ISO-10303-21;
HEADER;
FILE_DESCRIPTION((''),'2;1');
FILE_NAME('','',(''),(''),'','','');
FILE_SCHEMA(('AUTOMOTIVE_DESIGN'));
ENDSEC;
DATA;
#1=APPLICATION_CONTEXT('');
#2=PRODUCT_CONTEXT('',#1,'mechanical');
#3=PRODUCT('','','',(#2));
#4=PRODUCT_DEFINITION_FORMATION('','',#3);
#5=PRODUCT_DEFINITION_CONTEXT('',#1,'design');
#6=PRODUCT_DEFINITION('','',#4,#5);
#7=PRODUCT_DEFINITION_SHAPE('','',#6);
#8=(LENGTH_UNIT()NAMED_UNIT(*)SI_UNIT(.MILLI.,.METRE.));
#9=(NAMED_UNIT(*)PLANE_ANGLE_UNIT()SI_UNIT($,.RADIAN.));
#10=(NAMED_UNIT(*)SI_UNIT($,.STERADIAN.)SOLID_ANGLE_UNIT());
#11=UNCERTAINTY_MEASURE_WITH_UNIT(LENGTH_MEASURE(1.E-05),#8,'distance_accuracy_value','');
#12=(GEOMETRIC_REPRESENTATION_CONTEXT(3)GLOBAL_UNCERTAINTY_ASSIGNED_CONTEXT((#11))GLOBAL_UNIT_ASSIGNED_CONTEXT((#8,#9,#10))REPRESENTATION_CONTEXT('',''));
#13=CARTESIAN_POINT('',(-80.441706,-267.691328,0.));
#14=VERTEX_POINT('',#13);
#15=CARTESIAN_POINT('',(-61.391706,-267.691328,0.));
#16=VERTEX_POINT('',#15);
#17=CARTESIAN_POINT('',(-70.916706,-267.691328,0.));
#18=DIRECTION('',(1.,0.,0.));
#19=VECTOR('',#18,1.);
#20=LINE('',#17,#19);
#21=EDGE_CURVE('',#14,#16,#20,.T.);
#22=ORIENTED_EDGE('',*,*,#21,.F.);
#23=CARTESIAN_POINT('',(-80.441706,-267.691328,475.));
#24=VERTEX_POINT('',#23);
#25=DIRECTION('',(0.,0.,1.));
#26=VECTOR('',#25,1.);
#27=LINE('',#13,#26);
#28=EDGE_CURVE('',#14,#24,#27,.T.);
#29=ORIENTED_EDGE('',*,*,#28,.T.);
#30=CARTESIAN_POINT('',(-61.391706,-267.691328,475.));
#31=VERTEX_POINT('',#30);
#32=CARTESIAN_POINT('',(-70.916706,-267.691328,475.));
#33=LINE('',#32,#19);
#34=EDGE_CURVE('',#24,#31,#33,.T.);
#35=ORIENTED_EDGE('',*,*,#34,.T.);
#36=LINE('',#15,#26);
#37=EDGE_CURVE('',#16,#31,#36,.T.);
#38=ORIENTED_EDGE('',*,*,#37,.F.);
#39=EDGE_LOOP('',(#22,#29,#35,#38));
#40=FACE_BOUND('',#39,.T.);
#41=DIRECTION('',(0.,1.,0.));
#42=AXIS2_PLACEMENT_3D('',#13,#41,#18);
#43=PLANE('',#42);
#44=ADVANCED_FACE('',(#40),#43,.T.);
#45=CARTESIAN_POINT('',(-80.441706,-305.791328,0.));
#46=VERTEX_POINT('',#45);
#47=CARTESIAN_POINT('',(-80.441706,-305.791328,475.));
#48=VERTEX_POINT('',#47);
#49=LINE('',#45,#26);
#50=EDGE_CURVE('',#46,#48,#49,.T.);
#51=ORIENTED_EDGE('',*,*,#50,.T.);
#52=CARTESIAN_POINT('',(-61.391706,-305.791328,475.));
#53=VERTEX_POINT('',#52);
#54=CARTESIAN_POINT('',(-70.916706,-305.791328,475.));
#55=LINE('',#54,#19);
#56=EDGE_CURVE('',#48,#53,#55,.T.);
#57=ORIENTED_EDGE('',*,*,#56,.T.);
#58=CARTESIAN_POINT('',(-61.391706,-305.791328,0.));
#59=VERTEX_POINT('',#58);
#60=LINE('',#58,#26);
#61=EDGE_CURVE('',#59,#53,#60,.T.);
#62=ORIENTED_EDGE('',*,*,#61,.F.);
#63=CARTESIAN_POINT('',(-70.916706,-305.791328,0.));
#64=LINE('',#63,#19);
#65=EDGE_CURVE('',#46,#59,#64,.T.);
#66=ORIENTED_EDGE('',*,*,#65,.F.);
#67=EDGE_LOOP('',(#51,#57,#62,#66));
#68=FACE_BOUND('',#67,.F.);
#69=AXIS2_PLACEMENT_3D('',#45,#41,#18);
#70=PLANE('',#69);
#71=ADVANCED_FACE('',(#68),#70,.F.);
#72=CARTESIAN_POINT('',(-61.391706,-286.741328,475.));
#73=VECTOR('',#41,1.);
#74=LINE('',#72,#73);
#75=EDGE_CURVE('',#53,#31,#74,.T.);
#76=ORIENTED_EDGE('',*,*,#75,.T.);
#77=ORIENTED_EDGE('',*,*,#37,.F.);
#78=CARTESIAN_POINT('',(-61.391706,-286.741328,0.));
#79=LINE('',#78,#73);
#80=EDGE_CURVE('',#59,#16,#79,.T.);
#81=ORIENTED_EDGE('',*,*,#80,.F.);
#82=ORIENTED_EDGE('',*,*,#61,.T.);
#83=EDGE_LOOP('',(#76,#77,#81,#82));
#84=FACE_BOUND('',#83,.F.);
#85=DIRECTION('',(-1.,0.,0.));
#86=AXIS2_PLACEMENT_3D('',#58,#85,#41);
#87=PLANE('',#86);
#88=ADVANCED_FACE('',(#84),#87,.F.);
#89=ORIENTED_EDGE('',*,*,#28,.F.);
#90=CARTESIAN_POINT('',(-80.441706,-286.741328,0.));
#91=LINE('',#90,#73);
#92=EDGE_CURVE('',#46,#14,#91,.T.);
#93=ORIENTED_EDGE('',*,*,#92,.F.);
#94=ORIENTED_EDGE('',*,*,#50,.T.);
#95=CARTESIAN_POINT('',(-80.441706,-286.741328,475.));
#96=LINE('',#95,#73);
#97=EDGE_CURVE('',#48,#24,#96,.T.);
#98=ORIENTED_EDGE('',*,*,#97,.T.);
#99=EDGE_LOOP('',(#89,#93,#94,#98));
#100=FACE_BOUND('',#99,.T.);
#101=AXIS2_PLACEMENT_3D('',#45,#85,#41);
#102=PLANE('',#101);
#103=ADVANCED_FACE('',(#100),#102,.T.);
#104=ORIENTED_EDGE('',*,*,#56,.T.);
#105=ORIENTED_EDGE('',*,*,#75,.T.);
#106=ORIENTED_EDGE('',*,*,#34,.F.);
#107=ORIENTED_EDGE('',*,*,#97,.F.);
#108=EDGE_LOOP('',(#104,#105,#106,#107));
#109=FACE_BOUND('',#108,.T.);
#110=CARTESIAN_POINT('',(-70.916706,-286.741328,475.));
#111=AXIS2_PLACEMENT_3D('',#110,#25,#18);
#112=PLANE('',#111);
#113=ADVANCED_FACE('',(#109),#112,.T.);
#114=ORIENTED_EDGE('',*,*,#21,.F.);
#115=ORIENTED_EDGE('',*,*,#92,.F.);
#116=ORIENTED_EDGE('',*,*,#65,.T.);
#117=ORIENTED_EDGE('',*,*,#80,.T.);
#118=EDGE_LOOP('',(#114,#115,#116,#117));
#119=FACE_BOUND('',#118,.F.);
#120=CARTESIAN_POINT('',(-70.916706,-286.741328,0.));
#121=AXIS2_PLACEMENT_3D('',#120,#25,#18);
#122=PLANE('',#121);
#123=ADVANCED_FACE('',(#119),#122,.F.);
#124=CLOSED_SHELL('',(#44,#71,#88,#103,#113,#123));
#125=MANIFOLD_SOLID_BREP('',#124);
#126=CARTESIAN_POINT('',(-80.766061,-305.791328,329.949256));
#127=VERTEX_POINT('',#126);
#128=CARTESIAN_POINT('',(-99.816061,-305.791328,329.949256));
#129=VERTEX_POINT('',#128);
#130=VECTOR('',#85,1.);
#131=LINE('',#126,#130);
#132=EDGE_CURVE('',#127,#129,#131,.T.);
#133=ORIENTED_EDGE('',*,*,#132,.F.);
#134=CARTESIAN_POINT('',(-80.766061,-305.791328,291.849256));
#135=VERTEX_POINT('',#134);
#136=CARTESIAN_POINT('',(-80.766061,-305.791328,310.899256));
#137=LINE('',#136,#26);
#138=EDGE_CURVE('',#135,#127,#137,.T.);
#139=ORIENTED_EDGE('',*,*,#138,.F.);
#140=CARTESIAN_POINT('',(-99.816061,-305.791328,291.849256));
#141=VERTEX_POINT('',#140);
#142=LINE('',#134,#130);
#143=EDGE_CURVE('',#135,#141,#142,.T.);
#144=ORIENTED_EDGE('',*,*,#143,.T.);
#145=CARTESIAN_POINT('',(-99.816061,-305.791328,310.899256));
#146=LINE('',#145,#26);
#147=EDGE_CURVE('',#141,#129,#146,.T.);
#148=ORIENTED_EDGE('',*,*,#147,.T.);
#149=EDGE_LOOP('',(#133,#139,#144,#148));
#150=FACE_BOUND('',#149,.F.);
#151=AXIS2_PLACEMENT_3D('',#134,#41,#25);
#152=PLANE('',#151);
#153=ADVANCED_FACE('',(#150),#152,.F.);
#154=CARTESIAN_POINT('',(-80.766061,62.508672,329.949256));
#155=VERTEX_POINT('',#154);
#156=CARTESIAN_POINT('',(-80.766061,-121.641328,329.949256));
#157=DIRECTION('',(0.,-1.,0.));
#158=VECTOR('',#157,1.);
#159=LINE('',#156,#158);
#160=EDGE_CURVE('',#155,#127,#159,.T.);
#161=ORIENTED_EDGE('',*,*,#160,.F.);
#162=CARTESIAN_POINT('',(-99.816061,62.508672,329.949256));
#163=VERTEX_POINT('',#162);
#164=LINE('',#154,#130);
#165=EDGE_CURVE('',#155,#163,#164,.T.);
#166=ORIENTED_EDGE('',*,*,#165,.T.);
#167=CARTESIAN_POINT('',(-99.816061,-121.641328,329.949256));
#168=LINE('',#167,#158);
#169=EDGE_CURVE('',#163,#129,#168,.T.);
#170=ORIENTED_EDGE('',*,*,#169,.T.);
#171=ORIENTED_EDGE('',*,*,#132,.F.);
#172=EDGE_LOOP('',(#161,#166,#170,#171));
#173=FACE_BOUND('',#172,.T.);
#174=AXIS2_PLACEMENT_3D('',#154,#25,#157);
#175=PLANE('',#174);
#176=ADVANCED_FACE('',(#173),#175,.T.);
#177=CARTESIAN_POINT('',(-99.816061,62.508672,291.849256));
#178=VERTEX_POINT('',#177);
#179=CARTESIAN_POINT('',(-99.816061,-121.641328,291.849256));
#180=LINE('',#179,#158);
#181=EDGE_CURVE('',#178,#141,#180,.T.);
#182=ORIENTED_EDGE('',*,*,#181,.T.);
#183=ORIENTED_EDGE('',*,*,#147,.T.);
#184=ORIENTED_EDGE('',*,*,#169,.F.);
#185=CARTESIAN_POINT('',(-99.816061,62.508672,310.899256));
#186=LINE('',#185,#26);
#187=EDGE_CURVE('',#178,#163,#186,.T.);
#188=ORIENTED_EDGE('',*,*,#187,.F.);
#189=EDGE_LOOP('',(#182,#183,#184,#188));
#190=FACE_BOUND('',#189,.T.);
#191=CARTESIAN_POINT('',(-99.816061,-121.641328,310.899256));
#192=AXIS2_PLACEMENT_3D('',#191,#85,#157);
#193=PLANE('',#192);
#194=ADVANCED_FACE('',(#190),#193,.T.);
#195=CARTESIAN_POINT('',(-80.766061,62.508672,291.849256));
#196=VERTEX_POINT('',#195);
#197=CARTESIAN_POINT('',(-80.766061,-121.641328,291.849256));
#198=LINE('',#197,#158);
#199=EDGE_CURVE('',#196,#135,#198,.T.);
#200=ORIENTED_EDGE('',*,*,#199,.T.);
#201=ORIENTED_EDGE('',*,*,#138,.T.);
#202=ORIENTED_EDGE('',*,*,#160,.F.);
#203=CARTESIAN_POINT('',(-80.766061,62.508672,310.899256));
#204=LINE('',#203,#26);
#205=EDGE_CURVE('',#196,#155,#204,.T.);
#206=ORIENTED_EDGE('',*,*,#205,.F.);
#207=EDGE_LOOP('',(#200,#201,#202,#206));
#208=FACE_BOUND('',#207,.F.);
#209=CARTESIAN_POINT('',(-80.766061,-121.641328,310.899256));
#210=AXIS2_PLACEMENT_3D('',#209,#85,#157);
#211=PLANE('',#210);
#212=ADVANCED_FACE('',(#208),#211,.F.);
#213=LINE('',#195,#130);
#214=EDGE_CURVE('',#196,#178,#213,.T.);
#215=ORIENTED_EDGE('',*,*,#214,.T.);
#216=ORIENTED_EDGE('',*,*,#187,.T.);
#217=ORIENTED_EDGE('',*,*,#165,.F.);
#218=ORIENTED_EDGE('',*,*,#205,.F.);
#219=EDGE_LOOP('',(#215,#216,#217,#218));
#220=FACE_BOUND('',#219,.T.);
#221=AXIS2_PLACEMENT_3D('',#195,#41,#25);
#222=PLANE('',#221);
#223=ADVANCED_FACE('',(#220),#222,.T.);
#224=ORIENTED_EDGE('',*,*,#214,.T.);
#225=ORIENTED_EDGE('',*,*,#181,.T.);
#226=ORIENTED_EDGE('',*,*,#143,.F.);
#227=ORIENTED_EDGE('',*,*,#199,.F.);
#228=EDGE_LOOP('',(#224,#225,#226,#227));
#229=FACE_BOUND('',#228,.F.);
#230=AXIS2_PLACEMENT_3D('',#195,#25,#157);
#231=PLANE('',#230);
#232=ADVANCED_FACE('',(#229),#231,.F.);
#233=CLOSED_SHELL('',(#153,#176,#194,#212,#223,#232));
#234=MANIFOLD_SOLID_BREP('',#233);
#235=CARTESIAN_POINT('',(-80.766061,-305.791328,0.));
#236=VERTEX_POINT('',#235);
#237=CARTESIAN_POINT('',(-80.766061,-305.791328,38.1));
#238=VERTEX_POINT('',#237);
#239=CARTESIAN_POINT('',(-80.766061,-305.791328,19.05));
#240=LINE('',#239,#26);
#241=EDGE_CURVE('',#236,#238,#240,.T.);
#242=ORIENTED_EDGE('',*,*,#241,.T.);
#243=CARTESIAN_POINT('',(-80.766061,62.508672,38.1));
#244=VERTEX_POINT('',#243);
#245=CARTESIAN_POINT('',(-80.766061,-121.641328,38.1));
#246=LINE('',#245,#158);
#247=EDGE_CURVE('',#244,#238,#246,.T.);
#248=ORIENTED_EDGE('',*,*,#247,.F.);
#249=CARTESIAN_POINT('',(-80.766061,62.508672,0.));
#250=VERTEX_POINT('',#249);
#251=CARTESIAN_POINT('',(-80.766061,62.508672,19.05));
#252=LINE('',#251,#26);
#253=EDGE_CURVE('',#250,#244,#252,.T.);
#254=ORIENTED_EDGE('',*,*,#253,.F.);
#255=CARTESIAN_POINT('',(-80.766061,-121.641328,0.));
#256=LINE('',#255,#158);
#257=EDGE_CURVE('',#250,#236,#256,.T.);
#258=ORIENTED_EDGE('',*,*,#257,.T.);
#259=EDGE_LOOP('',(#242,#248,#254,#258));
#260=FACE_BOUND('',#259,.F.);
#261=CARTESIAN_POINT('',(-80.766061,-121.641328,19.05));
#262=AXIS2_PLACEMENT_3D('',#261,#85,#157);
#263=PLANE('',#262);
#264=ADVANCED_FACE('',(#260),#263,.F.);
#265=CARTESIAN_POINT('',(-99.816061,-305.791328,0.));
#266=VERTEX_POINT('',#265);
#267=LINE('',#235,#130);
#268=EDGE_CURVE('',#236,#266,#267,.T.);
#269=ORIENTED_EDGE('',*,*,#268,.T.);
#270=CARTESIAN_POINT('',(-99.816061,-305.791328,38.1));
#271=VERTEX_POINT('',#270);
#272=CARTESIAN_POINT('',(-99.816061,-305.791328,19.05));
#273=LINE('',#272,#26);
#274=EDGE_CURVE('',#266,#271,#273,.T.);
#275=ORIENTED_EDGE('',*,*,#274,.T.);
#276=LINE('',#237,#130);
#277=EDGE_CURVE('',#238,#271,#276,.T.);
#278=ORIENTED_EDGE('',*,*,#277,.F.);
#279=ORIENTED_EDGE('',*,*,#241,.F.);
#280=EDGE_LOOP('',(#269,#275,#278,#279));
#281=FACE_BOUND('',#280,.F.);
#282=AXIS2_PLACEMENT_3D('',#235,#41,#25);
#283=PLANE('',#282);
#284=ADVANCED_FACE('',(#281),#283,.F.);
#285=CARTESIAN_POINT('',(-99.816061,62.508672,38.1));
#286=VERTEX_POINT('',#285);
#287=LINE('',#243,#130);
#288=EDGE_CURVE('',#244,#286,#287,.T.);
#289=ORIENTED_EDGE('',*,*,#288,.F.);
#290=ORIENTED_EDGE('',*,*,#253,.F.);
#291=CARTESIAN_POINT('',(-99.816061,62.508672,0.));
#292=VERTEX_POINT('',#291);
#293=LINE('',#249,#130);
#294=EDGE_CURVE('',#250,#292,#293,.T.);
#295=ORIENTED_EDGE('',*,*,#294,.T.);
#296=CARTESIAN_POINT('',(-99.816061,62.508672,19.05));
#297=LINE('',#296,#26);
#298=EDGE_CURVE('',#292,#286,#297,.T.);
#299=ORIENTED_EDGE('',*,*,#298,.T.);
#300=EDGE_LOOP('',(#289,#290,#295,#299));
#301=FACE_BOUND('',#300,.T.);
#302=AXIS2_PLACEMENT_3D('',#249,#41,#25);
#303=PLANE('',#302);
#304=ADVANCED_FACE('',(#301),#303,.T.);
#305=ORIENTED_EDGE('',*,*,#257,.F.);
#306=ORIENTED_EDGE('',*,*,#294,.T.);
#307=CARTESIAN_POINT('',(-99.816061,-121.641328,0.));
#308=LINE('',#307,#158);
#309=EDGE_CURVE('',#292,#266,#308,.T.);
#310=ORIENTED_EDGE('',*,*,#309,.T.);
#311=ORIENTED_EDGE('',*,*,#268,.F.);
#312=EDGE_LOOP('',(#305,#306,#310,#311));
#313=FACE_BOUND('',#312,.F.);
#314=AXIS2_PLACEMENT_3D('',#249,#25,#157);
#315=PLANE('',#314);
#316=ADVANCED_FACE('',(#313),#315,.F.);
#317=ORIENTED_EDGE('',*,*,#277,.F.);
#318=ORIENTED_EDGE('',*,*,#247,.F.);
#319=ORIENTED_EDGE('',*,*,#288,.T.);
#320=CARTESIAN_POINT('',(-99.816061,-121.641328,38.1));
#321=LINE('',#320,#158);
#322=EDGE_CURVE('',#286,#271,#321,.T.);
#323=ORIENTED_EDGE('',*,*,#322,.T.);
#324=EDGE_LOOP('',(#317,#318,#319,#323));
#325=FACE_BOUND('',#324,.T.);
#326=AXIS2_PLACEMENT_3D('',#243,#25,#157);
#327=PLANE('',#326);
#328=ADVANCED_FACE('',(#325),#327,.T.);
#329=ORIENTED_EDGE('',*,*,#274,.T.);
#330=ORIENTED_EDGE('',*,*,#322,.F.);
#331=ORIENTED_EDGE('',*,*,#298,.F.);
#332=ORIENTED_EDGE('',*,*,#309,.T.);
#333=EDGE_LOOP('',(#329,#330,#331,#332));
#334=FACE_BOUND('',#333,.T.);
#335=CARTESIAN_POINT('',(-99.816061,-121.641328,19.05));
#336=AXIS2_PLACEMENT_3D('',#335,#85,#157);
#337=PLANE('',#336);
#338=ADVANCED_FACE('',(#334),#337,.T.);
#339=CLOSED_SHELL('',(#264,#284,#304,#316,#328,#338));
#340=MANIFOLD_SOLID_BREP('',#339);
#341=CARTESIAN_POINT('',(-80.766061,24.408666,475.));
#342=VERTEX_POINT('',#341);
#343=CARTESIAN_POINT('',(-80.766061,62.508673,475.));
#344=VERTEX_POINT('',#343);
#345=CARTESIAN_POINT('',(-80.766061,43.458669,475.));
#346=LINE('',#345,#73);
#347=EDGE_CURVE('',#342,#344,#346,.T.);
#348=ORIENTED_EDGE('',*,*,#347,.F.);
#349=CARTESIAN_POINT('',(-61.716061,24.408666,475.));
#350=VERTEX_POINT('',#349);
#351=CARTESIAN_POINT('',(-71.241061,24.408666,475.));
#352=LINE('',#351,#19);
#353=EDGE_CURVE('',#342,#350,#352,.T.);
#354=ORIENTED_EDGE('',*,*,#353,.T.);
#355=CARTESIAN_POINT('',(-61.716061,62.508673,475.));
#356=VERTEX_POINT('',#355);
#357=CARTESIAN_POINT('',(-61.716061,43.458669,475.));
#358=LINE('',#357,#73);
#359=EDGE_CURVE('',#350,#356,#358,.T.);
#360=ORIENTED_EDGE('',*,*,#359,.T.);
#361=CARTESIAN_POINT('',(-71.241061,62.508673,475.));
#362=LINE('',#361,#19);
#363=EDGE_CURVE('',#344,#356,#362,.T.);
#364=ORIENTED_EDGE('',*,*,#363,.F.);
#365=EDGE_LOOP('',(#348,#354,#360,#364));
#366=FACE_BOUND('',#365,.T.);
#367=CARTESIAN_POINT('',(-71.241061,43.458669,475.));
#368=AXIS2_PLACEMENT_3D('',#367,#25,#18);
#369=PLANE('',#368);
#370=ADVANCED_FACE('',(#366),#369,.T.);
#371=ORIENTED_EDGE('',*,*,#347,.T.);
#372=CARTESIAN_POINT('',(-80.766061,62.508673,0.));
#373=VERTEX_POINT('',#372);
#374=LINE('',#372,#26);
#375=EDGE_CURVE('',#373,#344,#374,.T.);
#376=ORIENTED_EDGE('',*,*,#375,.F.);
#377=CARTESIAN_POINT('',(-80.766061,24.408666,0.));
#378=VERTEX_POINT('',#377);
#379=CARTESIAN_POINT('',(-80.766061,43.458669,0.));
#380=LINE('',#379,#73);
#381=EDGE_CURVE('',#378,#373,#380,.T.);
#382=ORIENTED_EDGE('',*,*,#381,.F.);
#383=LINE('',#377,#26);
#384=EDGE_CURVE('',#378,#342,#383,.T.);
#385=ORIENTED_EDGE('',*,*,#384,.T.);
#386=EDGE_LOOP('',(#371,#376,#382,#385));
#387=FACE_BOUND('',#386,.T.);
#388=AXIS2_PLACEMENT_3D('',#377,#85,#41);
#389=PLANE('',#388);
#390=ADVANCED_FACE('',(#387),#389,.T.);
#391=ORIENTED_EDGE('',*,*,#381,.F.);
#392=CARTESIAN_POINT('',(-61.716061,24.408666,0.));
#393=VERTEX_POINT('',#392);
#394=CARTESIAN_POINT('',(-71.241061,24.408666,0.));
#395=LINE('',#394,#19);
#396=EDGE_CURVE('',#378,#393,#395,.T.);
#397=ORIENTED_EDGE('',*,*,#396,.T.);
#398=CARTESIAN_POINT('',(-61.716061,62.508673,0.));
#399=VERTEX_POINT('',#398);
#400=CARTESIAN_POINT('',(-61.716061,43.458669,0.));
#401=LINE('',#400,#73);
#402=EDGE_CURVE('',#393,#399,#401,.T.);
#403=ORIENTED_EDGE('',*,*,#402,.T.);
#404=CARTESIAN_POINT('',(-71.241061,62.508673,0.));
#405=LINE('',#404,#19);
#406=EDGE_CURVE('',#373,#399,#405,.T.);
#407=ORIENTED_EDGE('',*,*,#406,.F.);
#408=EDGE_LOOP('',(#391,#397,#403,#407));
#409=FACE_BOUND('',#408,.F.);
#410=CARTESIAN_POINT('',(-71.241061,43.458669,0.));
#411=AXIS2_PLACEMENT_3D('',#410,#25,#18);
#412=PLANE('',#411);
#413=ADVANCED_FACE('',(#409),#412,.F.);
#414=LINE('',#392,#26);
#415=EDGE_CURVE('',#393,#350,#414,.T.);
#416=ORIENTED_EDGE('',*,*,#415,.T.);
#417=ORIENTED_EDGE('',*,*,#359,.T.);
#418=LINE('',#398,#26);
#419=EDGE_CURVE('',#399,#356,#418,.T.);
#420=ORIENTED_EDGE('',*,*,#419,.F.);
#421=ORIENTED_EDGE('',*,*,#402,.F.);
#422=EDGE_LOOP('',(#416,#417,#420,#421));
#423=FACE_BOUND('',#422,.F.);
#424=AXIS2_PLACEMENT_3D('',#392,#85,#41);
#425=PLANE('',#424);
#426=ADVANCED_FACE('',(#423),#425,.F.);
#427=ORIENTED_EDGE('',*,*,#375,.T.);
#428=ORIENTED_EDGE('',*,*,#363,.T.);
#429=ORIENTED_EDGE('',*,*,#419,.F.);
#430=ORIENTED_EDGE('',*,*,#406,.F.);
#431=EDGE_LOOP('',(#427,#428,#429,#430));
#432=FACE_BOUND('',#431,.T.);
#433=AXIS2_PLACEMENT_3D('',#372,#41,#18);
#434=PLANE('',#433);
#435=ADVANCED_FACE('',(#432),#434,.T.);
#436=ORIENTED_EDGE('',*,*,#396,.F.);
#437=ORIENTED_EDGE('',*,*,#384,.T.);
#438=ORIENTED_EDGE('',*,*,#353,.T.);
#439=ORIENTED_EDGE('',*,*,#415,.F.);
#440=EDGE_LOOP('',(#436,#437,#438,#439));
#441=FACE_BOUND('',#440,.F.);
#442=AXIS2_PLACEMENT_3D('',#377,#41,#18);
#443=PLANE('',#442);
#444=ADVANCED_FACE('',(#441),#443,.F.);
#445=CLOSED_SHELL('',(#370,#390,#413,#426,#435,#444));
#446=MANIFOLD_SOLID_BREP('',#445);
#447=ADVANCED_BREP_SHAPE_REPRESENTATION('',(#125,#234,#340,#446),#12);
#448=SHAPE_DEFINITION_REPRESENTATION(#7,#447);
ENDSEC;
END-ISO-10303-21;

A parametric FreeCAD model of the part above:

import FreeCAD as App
import Part
import Sketcher
Q = App.Units.Quantity


def add_polygon(sketch, points):
    """Adds a closed chain of lines whose ends are joined by coincident constraints."""
    first, n = sketch.GeometryCount, len(points)
    for a, b in zip(points, points[1:] + points[:1]):
        sketch.addGeometry(Part.LineSegment(App.Vector(*a, 0), App.Vector(*b, 0)), False)
    for i in range(n):
        sketch.addConstraint(Sketcher.Constraint("Coincident", first + i, 2, first + (i + 1) % n, 1))

doc = App.newDocument("Part")
body = doc.addObject("PartDesign::Body", "Body")

sketch1 = body.newObject("Sketcher::SketchObject", "Sketch")
sketch1.AttachmentSupport = (doc.getObject("XY_Plane"), [""])
sketch1.MapMode = "FlatFace"
add_polygon(sketch1, [(-81, 63), (-81, 24), (-62, 24), (-62, 63)])
sketch1.addConstraint([
    Sketcher.Constraint("Vertical", 0),
    Sketcher.Constraint("Horizontal", 1),
    Sketcher.Constraint("Vertical", 2),
    Sketcher.Constraint("Horizontal", 3),
    Sketcher.Constraint("DistanceX", 1, 1, 1, 2, Q("0.75 in")),
    Sketcher.Constraint("DistanceY", 0, 2, 0, 1, 38.100007),
    Sketcher.Constraint("DistanceX", 0, 2, -1, 1, 80.766061),
    Sketcher.Constraint("DistanceY", -1, 1, 0, 2, 24.408666),
])
pad1 = body.newObject("PartDesign::Pad", "Pad")
pad1.Profile = sketch1
pad1.Length = 475
body2 = doc.addObject("PartDesign::Body", "Body001")

sketch2 = body2.newObject("Sketcher::SketchObject", "Sketch001")
sketch2.AttachmentSupport = (doc.getObject("XY_Plane001"), [""])
sketch2.MapMode = "FlatFace"
add_polygon(sketch2, [(-80, -268), (-80, -306), (-61, -306), (-61, -268)])
sketch2.addConstraint([
    Sketcher.Constraint("Vertical", 0),
    Sketcher.Constraint("Horizontal", 1),
    Sketcher.Constraint("Vertical", 2),
    Sketcher.Constraint("Horizontal", 3),
    Sketcher.Constraint("DistanceY", 0, 2, 0, 1, Q("1.5 in")),
    Sketcher.Constraint("DistanceX", 1, 1, 1, 2, Q("0.75 in")),
    Sketcher.Constraint("DistanceY", 0, 2, -1, 1, 305.791328),
    Sketcher.Constraint("DistanceX", 0, 2, -1, 1, 80.441706),
])
pad2 = body2.newObject("PartDesign::Pad", "Pad001")
pad2.Profile = sketch2
pad2.Length = 475
body3 = doc.addObject("PartDesign::Body", "Body002")

sketch3 = body3.newObject("Sketcher::SketchObject", "Sketch002")
sketch3.AttachmentSupport = (doc.getObject("YZ_Plane002"), [""])
sketch3.MapMode = "FlatFace"
sketch3.AttachmentOffset = App.Placement(App.Vector(0, 0, -80.766061), App.Rotation())
add_polygon(sketch3, [(63, 38), (63, 0), (-306, 0), (-306, 38)])
sketch3.addConstraint([
    Sketcher.Constraint("Vertical", 0),
    Sketcher.Constraint("Horizontal", 1),
    Sketcher.Constraint("Vertical", 2),
    Sketcher.Constraint("Horizontal", 3),
    Sketcher.Constraint("PointOnObject", 0, 2, -1),
    Sketcher.Constraint("DistanceX", 1, 2, 1, 1, Q("14.5 in")),
    Sketcher.Constraint("DistanceY", 0, 2, 0, 1, Q("1.5 in")),
    Sketcher.Constraint("DistanceX", -1, 1, 0, 2, 62.508672),
])
pad3 = body3.newObject("PartDesign::Pad", "Pad002")
pad3.Profile = sketch3
pad3.Length = Q("0.75 in")
pad3.Reversed = True
body4 = doc.addObject("PartDesign::Body", "Body003")

sketch4 = body4.newObject("Sketcher::SketchObject", "Sketch003")
sketch4.AttachmentSupport = (doc.getObject("YZ_Plane003"), [""])
sketch4.MapMode = "FlatFace"
sketch4.AttachmentOffset = App.Placement(App.Vector(0, 0, -80.766061), App.Rotation())
add_polygon(sketch4, [(63, 330), (63, 292), (-306, 292), (-306, 330)])
sketch4.addConstraint([
    Sketcher.Constraint("Vertical", 0),
    Sketcher.Constraint("Horizontal", 1),
    Sketcher.Constraint("Vertical", 2),
    Sketcher.Constraint("Horizontal", 3),
    Sketcher.Constraint("DistanceX", 1, 2, 1, 1, Q("14.5 in")),
    Sketcher.Constraint("DistanceY", 0, 2, 0, 1, Q("1.5 in")),
    Sketcher.Constraint("DistanceX", -1, 1, 0, 2, 62.508672),
    Sketcher.Constraint("DistanceY", -1, 1, 0, 2, 291.849256),
])
pad4 = body4.newObject("PartDesign::Pad", "Pad003")
pad4.Profile = sketch4
pad4.Length = Q("0.75 in")
pad4.Reversed = True

doc.recompute()
